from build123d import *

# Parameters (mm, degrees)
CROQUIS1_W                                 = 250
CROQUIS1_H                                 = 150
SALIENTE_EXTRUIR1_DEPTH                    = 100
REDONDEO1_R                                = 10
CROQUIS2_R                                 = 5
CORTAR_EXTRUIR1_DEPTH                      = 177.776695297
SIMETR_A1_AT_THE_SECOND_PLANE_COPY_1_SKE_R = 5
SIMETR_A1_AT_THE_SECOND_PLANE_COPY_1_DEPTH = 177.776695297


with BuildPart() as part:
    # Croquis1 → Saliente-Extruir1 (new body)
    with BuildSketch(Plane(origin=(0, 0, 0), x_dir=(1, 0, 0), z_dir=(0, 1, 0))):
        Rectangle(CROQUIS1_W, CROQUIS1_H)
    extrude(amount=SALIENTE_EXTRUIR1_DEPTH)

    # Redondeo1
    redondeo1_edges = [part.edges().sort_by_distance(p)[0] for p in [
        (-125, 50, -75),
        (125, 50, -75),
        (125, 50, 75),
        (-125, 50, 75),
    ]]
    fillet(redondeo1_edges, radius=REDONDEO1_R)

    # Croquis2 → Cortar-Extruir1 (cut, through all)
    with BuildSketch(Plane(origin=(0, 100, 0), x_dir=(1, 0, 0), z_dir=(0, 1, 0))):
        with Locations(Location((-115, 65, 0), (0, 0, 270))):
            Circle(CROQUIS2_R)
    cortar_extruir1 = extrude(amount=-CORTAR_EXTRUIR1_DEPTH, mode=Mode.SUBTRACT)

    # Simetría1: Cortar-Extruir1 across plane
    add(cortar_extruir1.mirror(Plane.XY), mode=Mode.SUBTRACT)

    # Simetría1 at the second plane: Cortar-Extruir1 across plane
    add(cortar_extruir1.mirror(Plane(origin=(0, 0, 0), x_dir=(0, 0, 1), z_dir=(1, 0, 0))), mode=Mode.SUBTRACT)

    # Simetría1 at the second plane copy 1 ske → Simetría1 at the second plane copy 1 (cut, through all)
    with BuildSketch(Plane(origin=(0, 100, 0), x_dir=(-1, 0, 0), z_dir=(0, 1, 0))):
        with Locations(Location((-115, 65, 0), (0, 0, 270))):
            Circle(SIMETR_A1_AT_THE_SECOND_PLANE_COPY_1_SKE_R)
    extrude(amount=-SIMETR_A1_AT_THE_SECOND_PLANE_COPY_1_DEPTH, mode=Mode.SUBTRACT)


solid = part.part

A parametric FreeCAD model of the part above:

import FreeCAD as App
import Part
import Sketcher

V = App.Vector


def edges_at(feature, points):
    """Names of the edges that pass closest to the given points."""
    edges = feature.Shape.Edges
    near = lambda p: min(range(len(edges)), key=lambda i: edges[i].distToShape(Part.Vertex(*p))[0])
    return sorted({f"Edge{near(p) + 1}" for p in points})


def add_polygon(sketch, points):
    """Adds a closed chain of lines whose ends are joined by coincident constraints."""
    first, n = sketch.GeometryCount, len(points)
    for a, b in zip(points, points[1:] + points[:1]):
        sketch.addGeometry(Part.LineSegment(App.Vector(*a, 0), App.Vector(*b, 0)), False)
    for i in range(n):
        sketch.addConstraint(Sketcher.Constraint("Coincident", first + i, 2, first + (i + 1) % n, 1))

doc = App.newDocument("Part")
body = doc.addObject("PartDesign::Body", "Body")

# Sketch on XZ plane
sketch1 = body.newObject("Sketcher::SketchObject", "Sketch")
sketch1.AttachmentSupport = (doc.getObject("XZ_Plane"), [""])
sketch1.MapMode = "FlatFace"
add_polygon(sketch1, [(-125, -75), (-125, 75), (125, 75), (125, -75)])  # lines 0-3
sketch1.addConstraint([
    Sketcher.Constraint("Vertical", 0),
    Sketcher.Constraint("Horizontal", 1),
    Sketcher.Constraint("Vertical", 2),
    Sketcher.Constraint("Horizontal", 3),
    Sketcher.Constraint("Symmetric", 0, 2, 2, 2, -1, 1),
    Sketcher.Constraint("DistanceX", 1, 1, 1, 2, 250.0),
    Sketcher.Constraint("DistanceY", 0, 1, 0, 2, 150.0),
])
pad1 = body.newObject("PartDesign::Pad", "Pad")
pad1.Profile = sketch1
pad1.Length = 100
pad1.Reversed = True
doc.recompute()

fillet = body.newObject("PartDesign::Fillet", "Fillet")
fillet.Base = (pad1, edges_at(pad1, [
    (-125, 50, -75),
    (125, 50, -75),
    (125, 50, 75),
    (-125, 50, 75),
]))
fillet.Radius = 10

# Sketch on XZ plane
sketch2 = body.newObject("Sketcher::SketchObject", "Sketch001")
sketch2.AttachmentSupport = (doc.getObject("XZ_Plane"), [""])
sketch2.MapMode = "FlatFace"
sketch2.AttachmentOffset = App.Placement(V(0, 0, -100), App.Rotation())
sketch2.addGeometry(Part.Circle(V(-115, -65, 0), V(0, 0, 1), 5), False)
sketch2.addConstraint([
    Sketcher.Constraint("Diameter", 0, 10.0),
    Sketcher.Constraint("DistanceX", 0, 3, -1, 1, 115.0),
    Sketcher.Constraint("DistanceY", 0, 3, -1, 1, 65.0),
])
pocket1 = body.newObject("PartDesign::Pocket", "Pocket")
pocket1.Profile = sketch2
pocket1.Type = "ThroughAll"
pocket1.Reversed = True
doc.recompute()

mirrored = body.newObject("PartDesign::Mirrored", "Mirrored")
mirrored.Originals = [pocket1]
mirrored.MirrorPlane = (doc.getObject("XY_Plane"), [""])
body.Tip = mirrored
doc.recompute()

mirrored2 = body.newObject("PartDesign::Mirrored", "Mirrored001")
mirrored2.Originals = [pocket1]
mirrored2.MirrorPlane = (doc.getObject("YZ_Plane"), [""])
body.Tip = mirrored2

# Sketch on XZ plane
sketch3 = body.newObject("Sketcher::SketchObject", "Sketch002")
sketch3.AttachmentSupport = (doc.getObject("XZ_Plane"), [""])
sketch3.MapMode = "FlatFace"
sketch3.AttachmentOffset = App.Placement(V(0, 0, -100), App.Rotation())
sketch3.addGeometry(Part.Circle(V(115, 65, 0), V(0, 0, 1), 5), False)
sketch3.addConstraint([
    Sketcher.Constraint("Diameter", 0, 10.0),
    Sketcher.Constraint("DistanceX", -1, 1, 0, 3, 115.0),
    Sketcher.Constraint("DistanceY", -1, 1, 0, 3, 65.0),
])
pocket2 = body.newObject("PartDesign::Pocket", "Pocket001")
pocket2.Profile = sketch3
pocket2.Type = "ThroughAll"
pocket2.Reversed = True

doc.recompute()
